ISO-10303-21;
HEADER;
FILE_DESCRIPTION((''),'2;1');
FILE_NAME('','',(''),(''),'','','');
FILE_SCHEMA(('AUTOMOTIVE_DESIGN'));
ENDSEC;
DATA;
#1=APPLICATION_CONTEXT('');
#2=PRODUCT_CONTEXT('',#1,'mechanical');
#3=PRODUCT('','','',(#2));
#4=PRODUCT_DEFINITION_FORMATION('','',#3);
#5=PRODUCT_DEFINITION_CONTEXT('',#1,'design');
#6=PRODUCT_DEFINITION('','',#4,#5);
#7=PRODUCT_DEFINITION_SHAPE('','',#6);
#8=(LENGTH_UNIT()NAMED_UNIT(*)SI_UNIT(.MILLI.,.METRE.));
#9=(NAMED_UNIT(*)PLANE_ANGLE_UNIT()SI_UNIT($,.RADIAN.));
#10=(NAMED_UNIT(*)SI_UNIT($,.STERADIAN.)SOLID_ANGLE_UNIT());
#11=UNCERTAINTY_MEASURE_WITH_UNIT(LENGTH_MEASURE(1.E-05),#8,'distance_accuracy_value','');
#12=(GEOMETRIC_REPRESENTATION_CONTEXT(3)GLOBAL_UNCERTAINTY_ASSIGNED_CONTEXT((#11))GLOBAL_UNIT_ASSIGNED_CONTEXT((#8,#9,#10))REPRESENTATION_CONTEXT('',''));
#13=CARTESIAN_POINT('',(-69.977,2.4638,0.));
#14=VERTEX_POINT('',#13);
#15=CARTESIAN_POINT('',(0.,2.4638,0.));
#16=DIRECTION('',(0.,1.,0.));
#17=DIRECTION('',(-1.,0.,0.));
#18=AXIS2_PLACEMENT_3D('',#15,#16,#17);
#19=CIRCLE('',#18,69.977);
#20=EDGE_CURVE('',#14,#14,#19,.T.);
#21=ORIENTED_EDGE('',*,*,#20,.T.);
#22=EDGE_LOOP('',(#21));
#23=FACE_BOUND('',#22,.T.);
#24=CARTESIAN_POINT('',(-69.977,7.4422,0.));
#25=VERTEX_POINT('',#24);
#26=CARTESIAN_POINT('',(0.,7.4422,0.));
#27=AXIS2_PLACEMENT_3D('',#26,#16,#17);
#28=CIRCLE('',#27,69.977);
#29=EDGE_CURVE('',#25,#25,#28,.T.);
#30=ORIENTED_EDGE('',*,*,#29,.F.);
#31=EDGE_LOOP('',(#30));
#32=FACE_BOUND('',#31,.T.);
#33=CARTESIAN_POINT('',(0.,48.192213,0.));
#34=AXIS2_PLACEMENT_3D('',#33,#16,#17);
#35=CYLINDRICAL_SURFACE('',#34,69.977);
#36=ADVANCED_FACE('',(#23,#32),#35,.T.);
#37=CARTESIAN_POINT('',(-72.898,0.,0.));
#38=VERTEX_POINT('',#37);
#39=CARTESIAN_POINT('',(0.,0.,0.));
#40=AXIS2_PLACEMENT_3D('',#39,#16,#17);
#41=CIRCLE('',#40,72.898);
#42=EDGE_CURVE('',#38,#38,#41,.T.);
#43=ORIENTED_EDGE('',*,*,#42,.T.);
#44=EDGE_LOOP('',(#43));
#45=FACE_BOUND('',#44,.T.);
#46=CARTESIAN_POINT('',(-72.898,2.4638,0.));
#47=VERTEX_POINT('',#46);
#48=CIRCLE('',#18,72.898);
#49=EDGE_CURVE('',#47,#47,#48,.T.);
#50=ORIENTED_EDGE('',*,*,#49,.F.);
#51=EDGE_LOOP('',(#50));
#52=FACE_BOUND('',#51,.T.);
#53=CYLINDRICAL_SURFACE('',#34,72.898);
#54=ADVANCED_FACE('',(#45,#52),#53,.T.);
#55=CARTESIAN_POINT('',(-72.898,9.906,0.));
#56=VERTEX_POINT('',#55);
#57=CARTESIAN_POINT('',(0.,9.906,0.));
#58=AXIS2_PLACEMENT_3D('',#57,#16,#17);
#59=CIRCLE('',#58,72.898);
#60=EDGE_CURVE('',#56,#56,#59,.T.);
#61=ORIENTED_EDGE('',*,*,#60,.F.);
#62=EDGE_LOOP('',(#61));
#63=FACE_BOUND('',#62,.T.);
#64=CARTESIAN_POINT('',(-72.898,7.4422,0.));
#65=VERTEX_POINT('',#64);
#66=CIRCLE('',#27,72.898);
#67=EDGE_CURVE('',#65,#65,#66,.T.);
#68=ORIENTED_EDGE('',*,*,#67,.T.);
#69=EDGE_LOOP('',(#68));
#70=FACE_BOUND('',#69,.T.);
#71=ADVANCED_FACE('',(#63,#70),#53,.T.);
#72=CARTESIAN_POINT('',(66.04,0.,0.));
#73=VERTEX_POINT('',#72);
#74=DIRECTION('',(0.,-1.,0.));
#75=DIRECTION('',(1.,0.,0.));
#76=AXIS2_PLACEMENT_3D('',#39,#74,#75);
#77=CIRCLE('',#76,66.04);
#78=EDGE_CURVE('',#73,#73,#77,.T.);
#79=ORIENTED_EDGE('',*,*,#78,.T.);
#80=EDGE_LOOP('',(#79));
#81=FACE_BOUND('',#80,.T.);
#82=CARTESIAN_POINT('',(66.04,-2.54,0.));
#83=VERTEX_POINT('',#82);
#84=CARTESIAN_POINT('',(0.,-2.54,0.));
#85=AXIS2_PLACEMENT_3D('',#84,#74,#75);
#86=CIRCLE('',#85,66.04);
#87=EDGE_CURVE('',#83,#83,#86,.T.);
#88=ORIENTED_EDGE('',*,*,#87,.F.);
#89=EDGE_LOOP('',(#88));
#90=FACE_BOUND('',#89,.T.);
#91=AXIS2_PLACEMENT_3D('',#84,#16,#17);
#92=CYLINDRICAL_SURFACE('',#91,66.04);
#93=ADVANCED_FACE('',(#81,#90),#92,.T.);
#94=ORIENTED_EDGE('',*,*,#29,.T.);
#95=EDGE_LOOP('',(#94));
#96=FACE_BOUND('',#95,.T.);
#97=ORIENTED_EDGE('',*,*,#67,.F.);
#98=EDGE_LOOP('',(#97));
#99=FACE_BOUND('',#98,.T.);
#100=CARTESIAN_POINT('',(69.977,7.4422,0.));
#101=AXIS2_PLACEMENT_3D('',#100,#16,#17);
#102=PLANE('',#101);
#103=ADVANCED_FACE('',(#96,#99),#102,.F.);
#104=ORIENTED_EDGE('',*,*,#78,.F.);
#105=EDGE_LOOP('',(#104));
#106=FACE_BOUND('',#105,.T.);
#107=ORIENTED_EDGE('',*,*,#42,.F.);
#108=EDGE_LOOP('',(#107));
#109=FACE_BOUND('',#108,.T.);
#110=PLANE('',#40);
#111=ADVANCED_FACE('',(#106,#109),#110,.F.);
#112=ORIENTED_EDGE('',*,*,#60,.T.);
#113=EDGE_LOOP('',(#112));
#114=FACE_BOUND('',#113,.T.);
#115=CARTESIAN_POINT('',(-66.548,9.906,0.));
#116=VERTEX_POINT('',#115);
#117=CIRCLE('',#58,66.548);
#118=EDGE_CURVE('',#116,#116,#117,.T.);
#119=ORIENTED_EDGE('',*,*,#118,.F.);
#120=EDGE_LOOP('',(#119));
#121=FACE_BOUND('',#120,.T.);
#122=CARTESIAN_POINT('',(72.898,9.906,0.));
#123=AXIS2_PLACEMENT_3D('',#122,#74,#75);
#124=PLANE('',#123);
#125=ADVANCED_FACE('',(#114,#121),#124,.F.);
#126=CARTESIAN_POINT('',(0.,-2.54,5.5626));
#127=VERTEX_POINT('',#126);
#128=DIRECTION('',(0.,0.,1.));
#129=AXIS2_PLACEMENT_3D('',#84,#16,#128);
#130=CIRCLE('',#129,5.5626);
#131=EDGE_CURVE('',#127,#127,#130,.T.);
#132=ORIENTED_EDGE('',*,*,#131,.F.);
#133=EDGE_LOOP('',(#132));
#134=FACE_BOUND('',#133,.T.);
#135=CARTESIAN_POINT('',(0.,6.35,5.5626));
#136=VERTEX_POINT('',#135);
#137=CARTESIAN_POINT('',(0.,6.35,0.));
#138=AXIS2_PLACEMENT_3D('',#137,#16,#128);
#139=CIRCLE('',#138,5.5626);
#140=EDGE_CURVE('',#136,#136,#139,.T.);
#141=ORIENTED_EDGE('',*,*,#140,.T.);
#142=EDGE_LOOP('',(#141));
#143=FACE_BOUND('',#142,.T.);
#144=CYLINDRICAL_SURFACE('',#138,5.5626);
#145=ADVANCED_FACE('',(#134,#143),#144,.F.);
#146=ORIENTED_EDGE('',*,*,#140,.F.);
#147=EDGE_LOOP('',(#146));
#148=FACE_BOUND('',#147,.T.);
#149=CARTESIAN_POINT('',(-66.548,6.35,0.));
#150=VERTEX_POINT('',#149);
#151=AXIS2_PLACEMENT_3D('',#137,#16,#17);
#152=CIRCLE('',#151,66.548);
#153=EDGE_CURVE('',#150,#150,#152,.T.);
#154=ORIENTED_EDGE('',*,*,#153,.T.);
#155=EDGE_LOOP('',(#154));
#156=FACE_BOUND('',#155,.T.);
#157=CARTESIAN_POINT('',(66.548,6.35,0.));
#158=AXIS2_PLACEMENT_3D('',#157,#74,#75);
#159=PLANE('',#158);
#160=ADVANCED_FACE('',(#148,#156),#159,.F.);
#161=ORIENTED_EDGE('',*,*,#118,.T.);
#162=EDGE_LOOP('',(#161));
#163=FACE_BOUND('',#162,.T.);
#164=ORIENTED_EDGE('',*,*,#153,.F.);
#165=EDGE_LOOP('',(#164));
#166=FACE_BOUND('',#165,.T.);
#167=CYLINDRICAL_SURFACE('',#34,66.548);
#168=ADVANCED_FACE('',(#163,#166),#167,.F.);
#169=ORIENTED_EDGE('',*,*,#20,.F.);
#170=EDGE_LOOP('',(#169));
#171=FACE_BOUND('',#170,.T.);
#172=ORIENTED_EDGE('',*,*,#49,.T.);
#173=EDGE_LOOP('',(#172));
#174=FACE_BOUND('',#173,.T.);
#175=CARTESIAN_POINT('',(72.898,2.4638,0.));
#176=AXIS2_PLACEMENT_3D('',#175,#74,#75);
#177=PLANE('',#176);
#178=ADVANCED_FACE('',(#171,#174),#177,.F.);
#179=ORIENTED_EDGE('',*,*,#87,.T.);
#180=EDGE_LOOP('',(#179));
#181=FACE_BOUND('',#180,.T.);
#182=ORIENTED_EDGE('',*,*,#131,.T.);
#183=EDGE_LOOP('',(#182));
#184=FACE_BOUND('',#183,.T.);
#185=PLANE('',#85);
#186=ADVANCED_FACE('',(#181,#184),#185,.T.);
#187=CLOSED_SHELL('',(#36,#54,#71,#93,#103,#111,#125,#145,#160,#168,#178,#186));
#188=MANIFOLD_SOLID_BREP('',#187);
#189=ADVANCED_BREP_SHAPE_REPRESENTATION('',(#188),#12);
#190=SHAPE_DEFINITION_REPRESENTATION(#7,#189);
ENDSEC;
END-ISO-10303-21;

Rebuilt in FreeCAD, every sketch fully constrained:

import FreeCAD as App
import Part
import Sketcher
Q = App.Units.Quantity


def add_polygon(sketch, points):
    """Adds a closed chain of lines whose ends are joined by coincident constraints."""
    first, n = sketch.GeometryCount, len(points)
    for a, b in zip(points, points[1:] + points[:1]):
        sketch.addGeometry(Part.LineSegment(App.Vector(*a, 0), App.Vector(*b, 0)), False)
    for i in range(n):
        sketch.addConstraint(Sketcher.Constraint("Coincident", first + i, 2, first + (i + 1) % n, 1))

doc = App.newDocument("Part")
body = doc.addObject("PartDesign::Body", "Body")

sketch1 = body.newObject("Sketcher::SketchObject", "Sketch")
sketch1.AttachmentSupport = (doc.getObject("XY_Plane"), [""])
sketch1.MapMode = "FlatFace"
add_polygon(sketch1, [(0, 0), (72.898, 0), (72.898, 2.4638), (69.977, 2.4638), (69.977, 7.4422), (72.898, 7.4422), (72.898, 9.906), (66.548, 9.906), (66.548, 6.35), (0, 6.35)])
sketch1.addConstraint([
    Sketcher.Constraint("Horizontal", 0),
    Sketcher.Constraint("Vertical", 1),
    Sketcher.Constraint("Horizontal", 2),
    Sketcher.Constraint("Vertical", 3),
    Sketcher.Constraint("Horizontal", 4),
    Sketcher.Constraint("Vertical", 5),
    Sketcher.Constraint("Horizontal", 6),
    Sketcher.Constraint("Vertical", 7),
    Sketcher.Constraint("Horizontal", 8),
    Sketcher.Constraint("Vertical", 9),
    Sketcher.Constraint("Coincident", 9, 2, -1, 1),
    Sketcher.Constraint("Vertical", 1, 2, 4, 2),
    Sketcher.Constraint("Equal", 1, 5),
    Sketcher.Constraint("Equal", 6, 9),
    Sketcher.Constraint("DistanceX", 0, 1, 0, 2, Q("2.87 in")),
    Sketcher.Constraint("DistanceX", 6, 2, 6, 1, Q("0.25 in")),
    Sketcher.Constraint("DistanceY", 7, 2, 7, 1, Q("0.14 in")),
    Sketcher.Constraint("DistanceX", 2, 2, 2, 1, Q("0.115 in")),
    Sketcher.Constraint("DistanceY", 1, 1, 1, 2, Q("0.097 in")),
])
revolution = body.newObject("PartDesign::Revolution", "Revolution")
revolution.Profile = sketch1
revolution.ReferenceAxis = (sketch1, ["V_Axis"])
revolution.Angle = 360

sketch2 = body.newObject("Sketcher::SketchObject", "Sketch001")
sketch2.AttachmentSupport = (doc.getObject("XZ_Plane"), [""])
sketch2.MapMode = "FlatFace"
sketch2.addGeometry(Part.Circle(App.Vector(0, 0, 0), App.Vector(0, 0, 1), 66.04), False)
sketch2.addConstraint([
    Sketcher.Constraint("Coincident", 0, 3, -1, 1),
    Sketcher.Constraint("Diameter", 0, Q("5.2 in")),
])
pad1 = body.newObject("PartDesign::Pad", "Pad")
pad1.Profile = sketch2
pad1.Length = Q("0.1 in")

sketch3 = body.newObject("Sketcher::SketchObject", "Sketch002")
sketch3.AttachmentSupport = (doc.getObject("XZ_Plane"), [""])
sketch3.MapMode = "FlatFace"
sketch3.AttachmentOffset = App.Placement(App.Vector(0, 0, -0.25 * 25.4), App.Rotation())
sketch3.addGeometry(Part.Circle(App.Vector(0, 0, 0), App.Vector(0, 0, 1), 5.5626), False)
sketch3.addConstraint([
    Sketcher.Constraint("Coincident", 0, 3, -1, 1),
    Sketcher.Constraint("Diameter", 0, Q("0.438 in")),
])
doc.recompute()
hole = body.newObject("PartDesign::Hole", "Hole")
hole.Profile = sketch3
hole.ThreadType = "None"
hole.Diameter = Q("0.438 in")
hole.DepthType = "ThroughAll"
hole.Reversed = True

doc.recompute()
